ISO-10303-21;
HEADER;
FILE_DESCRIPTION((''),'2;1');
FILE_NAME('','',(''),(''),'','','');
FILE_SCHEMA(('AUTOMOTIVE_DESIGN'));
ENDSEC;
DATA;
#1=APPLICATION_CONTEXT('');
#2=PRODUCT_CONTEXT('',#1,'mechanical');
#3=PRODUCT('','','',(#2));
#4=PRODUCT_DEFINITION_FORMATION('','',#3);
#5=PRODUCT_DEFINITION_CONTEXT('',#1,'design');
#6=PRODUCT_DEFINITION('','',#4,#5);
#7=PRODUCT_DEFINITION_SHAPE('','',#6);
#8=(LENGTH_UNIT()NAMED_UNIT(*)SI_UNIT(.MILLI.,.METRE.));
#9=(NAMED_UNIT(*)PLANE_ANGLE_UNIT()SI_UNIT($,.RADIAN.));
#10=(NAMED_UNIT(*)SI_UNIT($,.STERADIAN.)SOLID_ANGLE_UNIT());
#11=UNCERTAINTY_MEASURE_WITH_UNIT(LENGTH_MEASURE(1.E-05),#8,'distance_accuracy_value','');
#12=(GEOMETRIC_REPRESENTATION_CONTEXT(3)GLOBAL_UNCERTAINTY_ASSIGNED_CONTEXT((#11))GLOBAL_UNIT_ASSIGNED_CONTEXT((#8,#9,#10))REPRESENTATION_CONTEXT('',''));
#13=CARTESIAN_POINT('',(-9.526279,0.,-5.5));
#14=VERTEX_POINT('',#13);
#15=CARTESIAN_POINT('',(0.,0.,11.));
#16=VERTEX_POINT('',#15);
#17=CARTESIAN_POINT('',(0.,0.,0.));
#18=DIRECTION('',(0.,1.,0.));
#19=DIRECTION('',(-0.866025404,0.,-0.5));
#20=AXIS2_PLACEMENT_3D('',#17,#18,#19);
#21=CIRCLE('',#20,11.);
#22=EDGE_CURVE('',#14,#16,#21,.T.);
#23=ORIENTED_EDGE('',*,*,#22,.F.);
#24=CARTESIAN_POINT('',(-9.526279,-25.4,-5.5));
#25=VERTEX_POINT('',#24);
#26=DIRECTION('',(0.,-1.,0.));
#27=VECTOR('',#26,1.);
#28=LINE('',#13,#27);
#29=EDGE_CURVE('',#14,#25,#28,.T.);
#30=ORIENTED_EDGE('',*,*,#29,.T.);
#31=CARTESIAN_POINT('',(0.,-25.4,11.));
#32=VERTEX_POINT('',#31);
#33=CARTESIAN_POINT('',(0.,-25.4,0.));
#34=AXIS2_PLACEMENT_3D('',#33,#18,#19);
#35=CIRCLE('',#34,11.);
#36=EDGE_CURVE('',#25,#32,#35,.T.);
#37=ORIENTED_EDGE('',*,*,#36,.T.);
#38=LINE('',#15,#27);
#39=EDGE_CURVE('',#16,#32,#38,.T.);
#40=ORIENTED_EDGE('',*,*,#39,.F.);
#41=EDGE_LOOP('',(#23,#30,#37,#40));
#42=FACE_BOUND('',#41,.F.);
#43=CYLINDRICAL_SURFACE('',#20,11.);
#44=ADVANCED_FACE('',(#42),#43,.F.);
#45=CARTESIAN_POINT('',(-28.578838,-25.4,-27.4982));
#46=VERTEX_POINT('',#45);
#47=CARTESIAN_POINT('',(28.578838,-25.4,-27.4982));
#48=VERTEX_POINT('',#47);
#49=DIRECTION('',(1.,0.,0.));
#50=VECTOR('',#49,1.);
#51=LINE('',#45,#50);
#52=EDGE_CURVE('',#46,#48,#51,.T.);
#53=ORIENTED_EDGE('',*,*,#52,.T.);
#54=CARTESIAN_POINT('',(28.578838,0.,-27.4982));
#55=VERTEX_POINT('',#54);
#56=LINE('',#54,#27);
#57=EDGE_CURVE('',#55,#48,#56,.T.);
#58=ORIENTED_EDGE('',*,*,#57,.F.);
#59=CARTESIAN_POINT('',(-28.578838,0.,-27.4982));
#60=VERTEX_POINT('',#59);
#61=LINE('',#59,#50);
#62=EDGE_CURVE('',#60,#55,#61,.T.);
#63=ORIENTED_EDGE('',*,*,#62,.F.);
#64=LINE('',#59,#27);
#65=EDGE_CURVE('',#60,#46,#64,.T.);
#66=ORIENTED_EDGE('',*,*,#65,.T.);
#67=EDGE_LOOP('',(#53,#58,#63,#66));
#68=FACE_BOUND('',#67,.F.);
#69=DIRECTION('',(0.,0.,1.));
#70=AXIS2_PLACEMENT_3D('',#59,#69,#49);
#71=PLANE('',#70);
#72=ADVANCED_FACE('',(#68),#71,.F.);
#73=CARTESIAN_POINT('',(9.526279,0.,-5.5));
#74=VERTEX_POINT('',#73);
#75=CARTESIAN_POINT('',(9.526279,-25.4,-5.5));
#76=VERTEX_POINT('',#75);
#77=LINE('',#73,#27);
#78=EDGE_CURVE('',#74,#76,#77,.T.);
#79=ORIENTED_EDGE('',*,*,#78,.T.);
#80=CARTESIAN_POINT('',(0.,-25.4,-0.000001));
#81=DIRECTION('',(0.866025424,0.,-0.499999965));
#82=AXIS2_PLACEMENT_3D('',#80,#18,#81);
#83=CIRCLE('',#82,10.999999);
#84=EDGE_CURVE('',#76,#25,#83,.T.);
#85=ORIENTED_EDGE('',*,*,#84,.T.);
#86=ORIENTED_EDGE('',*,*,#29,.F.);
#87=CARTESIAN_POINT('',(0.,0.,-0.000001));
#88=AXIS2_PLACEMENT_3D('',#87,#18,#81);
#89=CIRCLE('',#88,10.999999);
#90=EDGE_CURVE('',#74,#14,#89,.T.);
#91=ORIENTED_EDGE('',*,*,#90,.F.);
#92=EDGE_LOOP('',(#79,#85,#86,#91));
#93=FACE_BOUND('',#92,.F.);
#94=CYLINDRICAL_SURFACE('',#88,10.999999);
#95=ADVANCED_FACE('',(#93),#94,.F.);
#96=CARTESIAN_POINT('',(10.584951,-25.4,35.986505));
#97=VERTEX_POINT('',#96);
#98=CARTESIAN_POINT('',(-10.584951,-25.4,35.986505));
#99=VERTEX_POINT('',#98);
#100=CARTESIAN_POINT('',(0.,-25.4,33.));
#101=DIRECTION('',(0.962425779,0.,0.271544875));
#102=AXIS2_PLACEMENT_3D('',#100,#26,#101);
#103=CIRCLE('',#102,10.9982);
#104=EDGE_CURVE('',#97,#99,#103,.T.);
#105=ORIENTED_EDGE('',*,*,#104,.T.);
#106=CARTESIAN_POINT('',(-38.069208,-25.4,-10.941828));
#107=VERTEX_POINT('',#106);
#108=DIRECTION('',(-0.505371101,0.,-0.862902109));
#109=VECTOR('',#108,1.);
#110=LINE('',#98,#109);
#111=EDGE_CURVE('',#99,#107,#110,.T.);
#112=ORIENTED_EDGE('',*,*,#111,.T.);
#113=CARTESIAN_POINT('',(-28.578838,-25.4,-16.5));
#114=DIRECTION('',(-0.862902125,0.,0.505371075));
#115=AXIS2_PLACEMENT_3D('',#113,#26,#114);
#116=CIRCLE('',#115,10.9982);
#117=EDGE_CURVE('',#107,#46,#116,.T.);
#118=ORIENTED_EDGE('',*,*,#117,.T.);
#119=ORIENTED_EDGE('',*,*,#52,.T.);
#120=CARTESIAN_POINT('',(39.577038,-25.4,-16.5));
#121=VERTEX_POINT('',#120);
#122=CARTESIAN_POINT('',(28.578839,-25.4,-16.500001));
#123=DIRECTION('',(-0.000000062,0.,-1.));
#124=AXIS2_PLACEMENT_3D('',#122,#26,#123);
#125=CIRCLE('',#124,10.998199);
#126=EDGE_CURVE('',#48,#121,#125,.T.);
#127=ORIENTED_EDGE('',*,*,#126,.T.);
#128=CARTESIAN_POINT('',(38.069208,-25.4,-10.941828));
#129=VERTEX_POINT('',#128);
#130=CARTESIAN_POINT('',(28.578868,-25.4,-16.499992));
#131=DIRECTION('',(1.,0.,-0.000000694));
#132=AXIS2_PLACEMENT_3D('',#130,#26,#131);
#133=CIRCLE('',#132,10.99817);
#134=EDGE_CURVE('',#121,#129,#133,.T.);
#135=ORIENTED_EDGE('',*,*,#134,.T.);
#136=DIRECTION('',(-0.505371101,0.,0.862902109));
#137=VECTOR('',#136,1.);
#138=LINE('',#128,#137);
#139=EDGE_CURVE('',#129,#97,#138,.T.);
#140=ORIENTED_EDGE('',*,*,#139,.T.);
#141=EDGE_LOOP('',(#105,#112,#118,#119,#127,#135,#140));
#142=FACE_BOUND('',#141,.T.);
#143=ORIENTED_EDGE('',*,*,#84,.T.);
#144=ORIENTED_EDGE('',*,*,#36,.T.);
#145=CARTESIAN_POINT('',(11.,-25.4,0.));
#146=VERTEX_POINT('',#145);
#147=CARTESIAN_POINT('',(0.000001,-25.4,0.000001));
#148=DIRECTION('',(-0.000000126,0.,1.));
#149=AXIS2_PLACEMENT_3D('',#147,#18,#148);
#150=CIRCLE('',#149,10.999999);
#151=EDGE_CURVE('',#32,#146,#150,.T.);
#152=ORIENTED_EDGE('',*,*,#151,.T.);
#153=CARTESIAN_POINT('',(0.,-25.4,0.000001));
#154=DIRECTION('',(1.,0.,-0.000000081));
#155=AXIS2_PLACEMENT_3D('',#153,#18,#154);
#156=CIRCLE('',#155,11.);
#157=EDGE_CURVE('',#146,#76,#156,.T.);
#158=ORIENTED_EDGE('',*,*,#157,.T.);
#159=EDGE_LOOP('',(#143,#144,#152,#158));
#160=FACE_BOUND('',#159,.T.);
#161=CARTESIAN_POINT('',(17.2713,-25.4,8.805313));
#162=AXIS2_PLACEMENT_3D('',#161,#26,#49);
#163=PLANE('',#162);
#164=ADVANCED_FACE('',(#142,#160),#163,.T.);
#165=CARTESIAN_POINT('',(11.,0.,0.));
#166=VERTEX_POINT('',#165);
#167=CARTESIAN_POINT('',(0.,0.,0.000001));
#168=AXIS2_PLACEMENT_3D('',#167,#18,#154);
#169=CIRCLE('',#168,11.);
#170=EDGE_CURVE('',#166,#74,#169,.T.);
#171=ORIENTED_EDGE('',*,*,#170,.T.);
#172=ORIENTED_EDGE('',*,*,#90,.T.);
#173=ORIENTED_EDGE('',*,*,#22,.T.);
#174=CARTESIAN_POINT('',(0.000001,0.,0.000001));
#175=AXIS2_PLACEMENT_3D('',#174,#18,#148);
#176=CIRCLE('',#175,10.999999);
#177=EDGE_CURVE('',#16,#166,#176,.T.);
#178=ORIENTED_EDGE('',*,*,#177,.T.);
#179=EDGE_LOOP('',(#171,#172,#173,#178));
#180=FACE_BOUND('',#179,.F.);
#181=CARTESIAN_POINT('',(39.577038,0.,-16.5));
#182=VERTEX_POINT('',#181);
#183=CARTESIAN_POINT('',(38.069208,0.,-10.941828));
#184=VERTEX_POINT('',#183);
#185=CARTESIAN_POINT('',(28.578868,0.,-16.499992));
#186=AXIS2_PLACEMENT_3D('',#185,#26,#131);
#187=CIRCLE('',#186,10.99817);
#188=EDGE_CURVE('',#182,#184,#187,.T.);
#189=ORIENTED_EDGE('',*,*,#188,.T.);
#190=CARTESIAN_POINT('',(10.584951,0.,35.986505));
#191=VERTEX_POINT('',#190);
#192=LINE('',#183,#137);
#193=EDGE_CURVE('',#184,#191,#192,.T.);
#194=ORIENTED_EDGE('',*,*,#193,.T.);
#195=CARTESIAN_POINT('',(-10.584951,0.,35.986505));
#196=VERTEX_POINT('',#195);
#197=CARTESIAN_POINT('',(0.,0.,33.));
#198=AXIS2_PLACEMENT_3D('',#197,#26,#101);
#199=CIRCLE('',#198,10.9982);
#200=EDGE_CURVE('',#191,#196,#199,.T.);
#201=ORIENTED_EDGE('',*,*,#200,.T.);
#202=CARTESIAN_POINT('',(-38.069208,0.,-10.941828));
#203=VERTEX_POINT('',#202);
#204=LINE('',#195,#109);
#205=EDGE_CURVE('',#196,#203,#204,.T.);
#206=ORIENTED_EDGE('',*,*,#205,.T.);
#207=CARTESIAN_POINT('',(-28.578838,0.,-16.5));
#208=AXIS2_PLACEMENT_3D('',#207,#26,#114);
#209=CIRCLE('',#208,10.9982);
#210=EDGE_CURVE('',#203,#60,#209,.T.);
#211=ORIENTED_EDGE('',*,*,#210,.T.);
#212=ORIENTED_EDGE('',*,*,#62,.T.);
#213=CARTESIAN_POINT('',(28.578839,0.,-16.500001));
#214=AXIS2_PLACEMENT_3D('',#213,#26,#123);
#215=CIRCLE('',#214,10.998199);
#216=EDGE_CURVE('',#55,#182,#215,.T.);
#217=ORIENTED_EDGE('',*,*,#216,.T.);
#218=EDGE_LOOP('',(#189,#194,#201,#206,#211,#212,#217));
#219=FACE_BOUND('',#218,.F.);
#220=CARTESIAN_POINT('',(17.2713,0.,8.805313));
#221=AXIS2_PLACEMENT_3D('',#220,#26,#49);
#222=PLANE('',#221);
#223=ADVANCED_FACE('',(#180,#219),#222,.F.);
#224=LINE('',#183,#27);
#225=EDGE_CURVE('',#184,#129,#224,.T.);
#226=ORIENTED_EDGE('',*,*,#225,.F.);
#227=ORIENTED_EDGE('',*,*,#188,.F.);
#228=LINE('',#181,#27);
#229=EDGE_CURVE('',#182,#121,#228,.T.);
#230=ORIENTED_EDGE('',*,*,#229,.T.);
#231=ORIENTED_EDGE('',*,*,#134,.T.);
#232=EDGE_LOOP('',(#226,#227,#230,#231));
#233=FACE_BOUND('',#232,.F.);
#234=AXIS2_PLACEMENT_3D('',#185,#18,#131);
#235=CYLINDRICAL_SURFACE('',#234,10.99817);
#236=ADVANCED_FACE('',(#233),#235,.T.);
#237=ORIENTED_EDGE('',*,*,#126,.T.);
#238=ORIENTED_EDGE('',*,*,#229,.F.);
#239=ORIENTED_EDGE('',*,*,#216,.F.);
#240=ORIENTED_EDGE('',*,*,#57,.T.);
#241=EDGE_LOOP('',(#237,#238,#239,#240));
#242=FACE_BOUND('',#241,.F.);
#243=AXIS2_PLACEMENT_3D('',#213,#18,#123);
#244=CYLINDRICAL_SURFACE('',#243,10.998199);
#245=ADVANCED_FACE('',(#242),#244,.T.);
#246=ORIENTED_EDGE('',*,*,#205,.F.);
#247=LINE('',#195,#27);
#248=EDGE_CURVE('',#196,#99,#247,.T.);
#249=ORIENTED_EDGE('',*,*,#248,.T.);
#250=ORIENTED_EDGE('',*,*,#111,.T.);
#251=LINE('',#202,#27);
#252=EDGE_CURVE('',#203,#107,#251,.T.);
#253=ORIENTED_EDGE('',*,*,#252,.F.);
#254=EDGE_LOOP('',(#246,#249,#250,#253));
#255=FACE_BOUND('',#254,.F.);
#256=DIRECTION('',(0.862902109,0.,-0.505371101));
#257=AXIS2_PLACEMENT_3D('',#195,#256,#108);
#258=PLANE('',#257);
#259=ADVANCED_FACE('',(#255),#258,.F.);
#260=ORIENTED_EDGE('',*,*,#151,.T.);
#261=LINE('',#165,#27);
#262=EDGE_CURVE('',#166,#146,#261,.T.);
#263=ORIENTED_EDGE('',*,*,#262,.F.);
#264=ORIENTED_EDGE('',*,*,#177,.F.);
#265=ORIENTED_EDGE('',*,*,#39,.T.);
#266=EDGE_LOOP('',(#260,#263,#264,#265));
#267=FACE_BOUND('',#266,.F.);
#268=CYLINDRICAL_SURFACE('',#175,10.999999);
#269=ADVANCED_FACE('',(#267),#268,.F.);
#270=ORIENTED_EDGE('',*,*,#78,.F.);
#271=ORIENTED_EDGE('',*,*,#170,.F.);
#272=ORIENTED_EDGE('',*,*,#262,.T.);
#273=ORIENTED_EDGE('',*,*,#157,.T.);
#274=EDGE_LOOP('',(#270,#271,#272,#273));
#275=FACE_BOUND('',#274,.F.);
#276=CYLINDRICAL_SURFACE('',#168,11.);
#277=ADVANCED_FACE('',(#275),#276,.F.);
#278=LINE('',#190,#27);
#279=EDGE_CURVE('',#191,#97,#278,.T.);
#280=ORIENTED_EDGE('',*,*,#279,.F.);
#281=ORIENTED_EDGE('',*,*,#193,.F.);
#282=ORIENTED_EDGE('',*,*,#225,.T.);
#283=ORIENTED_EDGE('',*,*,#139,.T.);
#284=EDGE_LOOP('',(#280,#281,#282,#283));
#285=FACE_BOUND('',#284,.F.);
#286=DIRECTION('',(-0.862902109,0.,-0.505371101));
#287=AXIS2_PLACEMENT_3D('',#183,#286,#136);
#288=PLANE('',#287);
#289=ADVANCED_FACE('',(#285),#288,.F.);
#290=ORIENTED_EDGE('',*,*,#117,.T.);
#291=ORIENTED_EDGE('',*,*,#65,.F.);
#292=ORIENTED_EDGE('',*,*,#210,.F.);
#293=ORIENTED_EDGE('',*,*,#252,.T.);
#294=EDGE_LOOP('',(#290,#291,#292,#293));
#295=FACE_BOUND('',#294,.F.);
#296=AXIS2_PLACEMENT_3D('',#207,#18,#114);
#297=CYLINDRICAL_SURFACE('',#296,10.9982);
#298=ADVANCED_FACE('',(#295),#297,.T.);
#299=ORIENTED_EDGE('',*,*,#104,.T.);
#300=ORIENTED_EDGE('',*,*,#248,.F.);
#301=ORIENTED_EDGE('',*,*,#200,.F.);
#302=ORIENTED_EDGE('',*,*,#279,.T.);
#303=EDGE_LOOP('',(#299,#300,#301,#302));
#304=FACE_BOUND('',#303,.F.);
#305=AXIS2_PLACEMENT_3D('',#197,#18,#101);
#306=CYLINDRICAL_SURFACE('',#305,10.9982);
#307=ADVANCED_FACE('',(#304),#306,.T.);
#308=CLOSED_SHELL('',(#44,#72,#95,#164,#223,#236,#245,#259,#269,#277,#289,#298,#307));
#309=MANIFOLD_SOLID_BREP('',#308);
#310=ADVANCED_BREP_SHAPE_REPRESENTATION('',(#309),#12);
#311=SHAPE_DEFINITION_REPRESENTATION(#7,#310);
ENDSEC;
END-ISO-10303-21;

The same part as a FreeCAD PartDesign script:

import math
import FreeCAD as App
import Part
import Sketcher

doc = App.newDocument("Part")
params = doc.addObject("Spreadsheet::Sheet", "Params")
for row, (alias, value) in enumerate([
    ("sketch1_radius", "10.999999 mm"),
    ("sketch1_radius2", "11 mm"),
    ("pad1_length", "25.4 mm"),
], start=1):
    params.set(f"A{row}", alias)
    params.set(f"B{row}", "=" + value)
    params.setAlias(f"B{row}", alias)

body = doc.addObject("PartDesign::Body", "Body")

sketch1 = doc.addObject("Sketcher::SketchObject", "Sketch")
body.addObject(sketch1)
sketch1.AttachmentSupport = (doc.XZ_Plane, [""])
sketch1.MapMode = "FlatFace"
sketch1.addGeometry(Part.LineSegment(App.Vector(38.069208, -10.941828, 0), App.Vector(10.584951, 35.986505, 0)), False)
sketch1.addGeometry(Part.ArcOfCircle(Part.Circle(App.Vector(0, 33, 0), App.Vector(0, 0, 1), 10.9982), math.radians(15.756217), math.radians(164.243783)), False)
sketch1.addGeometry(Part.LineSegment(App.Vector(-10.584951, 35.986505, 0), App.Vector(-38.069208, -10.941828, 0)), False)
sketch1.addGeometry(Part.ArcOfCircle(Part.Circle(App.Vector(-28.578838, -16.5, 0), App.Vector(0, 0, 1), 10.9982), math.radians(149.644012), math.radians(270)), False)
sketch1.addGeometry(Part.LineSegment(App.Vector(-28.578838, -27.4982, 0), App.Vector(28.578838, -27.4982, 0)), False)
sketch1.addGeometry(Part.ArcOfCircle(Part.Circle(App.Vector(28.578839, -16.500001, 0), App.Vector(0, 0, 1), 10.998199), math.radians(-90.000004), math.radians(0.000004)), False)
sketch1.addGeometry(Part.ArcOfCircle(Part.Circle(App.Vector(28.578868, -16.499992, 0), App.Vector(0, 0, 1), 10.99817), math.radians(-0.00004), math.radians(30.356032)), False)
sketch1.addGeometry(Part.ArcOfCircle(Part.Circle(App.Vector(0.000001, 0.000001, 0), App.Vector(0, 0, 1), 10.999999), math.radians(-0.000007), math.radians(90.000007)), False)
sketch1.addGeometry(Part.ArcOfCircle(Part.Circle(App.Vector(0, 0.000001, 0), App.Vector(0, 0, 1), 11), math.radians(-30.000004), math.radians(-0.000005)), False)
sketch1.addGeometry(Part.ArcOfCircle(Part.Circle(App.Vector(0, -0.000001, 0), App.Vector(0, 0, 1), 10.999999), math.radians(-150.000002), math.radians(-29.999998)), False)
sketch1.addGeometry(Part.ArcOfCircle(Part.Circle(App.Vector(0, 0, 0), App.Vector(0, 0, 1), 11), math.radians(90.000002), math.radians(210)), False)
sketch1.addConstraint(Sketcher.Constraint("Coincident", 0, 2, 1, 1))
sketch1.addConstraint(Sketcher.Constraint("Coincident", 1, 2, 2, 1))
sketch1.addConstraint(Sketcher.Constraint("Coincident", 2, 2, 3, 1))
sketch1.addConstraint(Sketcher.Constraint("Coincident", 3, 2, 4, 1))
sketch1.addConstraint(Sketcher.Constraint("Coincident", 4, 2, 5, 1))
sketch1.addConstraint(Sketcher.Constraint("Coincident", 5, 2, 6, 1))
sketch1.addConstraint(Sketcher.Constraint("Coincident", 6, 2, 0, 1))
sketch1.addConstraint(Sketcher.Constraint("Coincident", 7, 1, 8, 2))
sketch1.addConstraint(Sketcher.Constraint("Coincident", 8, 1, 9, 2))
sketch1.addConstraint(Sketcher.Constraint("Coincident", 9, 1, 10, 2))
sketch1.addConstraint(Sketcher.Constraint("Coincident", 10, 1, 7, 2))
sketch1.addConstraint(Sketcher.Constraint("Horizontal", 4))
sketch1.addConstraint(Sketcher.Constraint("Coincident", 7, 3, -1, 1))
sketch1.addConstraint(Sketcher.Constraint("Coincident", 8, 3, -1, 1))
sketch1.addConstraint(Sketcher.Constraint("Coincident", 9, 3, -1, 1))
sketch1.addConstraint(Sketcher.Constraint("PointOnObject", 1, 3, -2))
sketch1.addConstraint(Sketcher.Constraint("PointOnObject", 7, 1, -1))
sketch1.addConstraint(Sketcher.Constraint("PointOnObject", 10, 1, -2))
sketch1.addConstraint(Sketcher.Constraint("Radius", 7, 10.999999))
sketch1.addConstraint(Sketcher.Constraint("Radius", 10, 11.0))
sketch1.addConstraint(Sketcher.Constraint("DistanceY", -1, 1, 1, 3, 33.0))
sketch1.addConstraint(Sketcher.Constraint("DistanceY", 3, 3, -1, 1, 16.5))
sketch1.addConstraint(Sketcher.Constraint("DistanceY", 5, 3, -1, 1, 16.500001))
sketch1.addConstraint(Sketcher.Constraint("DistanceY", 5, 2, -1, 1, 16.5))
sketch1.addConstraint(Sketcher.Constraint("DistanceY", 8, 1, -1, 1, 5.5))
sketch1.addConstraint(Sketcher.Constraint("DistanceY", 9, 1, -1, 1, 5.5))
sketch1.addConstraint(Sketcher.Constraint("Radius", 1, 10.9982))
sketch1.addConstraint(Sketcher.Constraint("Radius", 3, 10.9982))
sketch1.addConstraint(Sketcher.Constraint("Radius", 6, 10.99817))
sketch1.addConstraint(Sketcher.Constraint("DistanceX", 4, 2, 5, 2, 10.9982))
sketch1.addConstraint(Sketcher.Constraint("DistanceX", 4, 1, 4, 2, 57.157676))
sketch1.addConstraint(Sketcher.Constraint("DistanceX", -1, 1, 5, 3, 28.578839))
sketch1.addConstraint(Sketcher.Constraint("DistanceX", -1, 1, 0, 2, 10.584951))
sketch1.addConstraint(Sketcher.Constraint("DistanceX", 1, 2, -1, 1, 10.584951))
sketch1.addConstraint(Sketcher.Constraint("DistanceX", 2, 2, -1, 1, 38.069208))
sketch1.addConstraint(Sketcher.Constraint("DistanceX", -1, 1, 6, 2, 38.069208))
sketch1.addConstraint(Sketcher.Constraint("DistanceX", 3, 3, 7, 3, 28.578839))
sketch1.addConstraint(Sketcher.Constraint("DistanceY", 6, 2, 7, 3, 10.941829))
sketch1.setExpression("Constraints[18]", "Params.sketch1_radius")
sketch1.setExpression("Constraints[19]", "Params.sketch1_radius2")
pad1 = doc.addObject("PartDesign::Pad", "Pad")
body.addObject(pad1)
pad1.Profile = sketch1
pad1.setExpression("Length", "Params.pad1_length")

doc.recompute()
